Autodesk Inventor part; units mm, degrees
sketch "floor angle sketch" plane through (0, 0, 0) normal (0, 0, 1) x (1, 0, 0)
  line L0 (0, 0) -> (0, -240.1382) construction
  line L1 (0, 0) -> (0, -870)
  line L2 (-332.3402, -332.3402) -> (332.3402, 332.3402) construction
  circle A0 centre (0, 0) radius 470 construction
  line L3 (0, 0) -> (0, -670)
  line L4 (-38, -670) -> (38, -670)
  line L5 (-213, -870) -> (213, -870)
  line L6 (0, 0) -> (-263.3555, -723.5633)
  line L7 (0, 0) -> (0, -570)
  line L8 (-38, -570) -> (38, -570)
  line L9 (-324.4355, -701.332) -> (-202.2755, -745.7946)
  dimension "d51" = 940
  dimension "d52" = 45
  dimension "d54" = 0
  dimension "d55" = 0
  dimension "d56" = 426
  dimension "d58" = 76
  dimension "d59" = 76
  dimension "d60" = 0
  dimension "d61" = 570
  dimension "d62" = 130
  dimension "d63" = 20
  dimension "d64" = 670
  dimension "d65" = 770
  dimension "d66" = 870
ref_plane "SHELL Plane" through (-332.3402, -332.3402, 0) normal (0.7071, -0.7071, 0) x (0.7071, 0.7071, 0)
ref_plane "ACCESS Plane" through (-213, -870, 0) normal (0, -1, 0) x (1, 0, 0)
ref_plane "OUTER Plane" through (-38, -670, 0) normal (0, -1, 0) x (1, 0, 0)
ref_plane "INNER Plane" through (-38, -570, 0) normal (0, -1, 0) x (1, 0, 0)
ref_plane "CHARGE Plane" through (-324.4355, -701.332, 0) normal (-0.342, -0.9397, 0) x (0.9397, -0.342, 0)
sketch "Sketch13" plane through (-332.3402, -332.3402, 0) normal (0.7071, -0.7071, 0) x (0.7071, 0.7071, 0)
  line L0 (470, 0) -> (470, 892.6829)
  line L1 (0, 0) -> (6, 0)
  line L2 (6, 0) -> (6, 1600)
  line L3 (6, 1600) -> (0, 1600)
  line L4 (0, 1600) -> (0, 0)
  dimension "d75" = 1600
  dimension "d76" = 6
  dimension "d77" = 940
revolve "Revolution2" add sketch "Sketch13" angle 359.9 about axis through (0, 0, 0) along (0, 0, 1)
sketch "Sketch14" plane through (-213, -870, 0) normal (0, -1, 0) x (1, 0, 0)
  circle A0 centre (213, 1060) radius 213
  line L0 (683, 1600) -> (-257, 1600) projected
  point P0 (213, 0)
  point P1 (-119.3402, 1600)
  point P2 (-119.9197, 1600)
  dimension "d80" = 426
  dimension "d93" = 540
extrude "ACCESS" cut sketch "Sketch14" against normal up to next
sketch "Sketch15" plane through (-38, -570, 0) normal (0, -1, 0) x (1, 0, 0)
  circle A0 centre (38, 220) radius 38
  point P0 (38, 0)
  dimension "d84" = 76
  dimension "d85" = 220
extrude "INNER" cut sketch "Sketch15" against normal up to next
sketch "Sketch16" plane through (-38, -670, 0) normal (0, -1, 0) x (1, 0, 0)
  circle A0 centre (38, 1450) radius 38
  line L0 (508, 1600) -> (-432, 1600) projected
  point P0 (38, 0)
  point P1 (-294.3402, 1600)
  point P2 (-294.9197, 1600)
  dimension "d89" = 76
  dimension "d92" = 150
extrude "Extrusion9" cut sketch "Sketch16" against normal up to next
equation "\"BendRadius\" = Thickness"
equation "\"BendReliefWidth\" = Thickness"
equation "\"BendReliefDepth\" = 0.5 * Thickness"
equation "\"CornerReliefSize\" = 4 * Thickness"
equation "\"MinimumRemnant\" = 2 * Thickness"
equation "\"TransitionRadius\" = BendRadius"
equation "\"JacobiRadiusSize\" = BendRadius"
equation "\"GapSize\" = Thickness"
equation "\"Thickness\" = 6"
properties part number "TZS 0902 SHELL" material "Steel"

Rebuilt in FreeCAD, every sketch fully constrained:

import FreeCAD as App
import Part
import Sketcher
from FreeCAD import Vector


def add_polygon(sketch, points):
    """Adds a closed chain of lines whose ends are joined by coincident constraints."""
    first, n = sketch.GeometryCount, len(points)
    for a, b in zip(points, points[1:] + points[:1]):
        sketch.addGeometry(Part.LineSegment(App.Vector(*a, 0), App.Vector(*b, 0)), False)
    for i in range(n):
        sketch.addConstraint(Sketcher.Constraint("Coincident", first + i, 2, first + (i + 1) % n, 1))

doc = App.newDocument("Part")
body = doc.addObject("PartDesign::Body", "Body")

# Sketch on an angled plane
sketch1 = body.newObject("Sketcher::SketchObject", "Sketch")
sketch1.Placement = App.Placement(Vector(-332.3402, -332.3402, 0), App.Rotation(Vector(0.707106781, 0.707106781, 0), Vector(0, 0, 0.999999999), Vector(0.707106781, -0.707106781, 0), "ZXY"))
add_polygon(sketch1, [(0, 1599.999998), (0, 0), (6, 0), (6, 1599.999998)])  # lines 0-3
sketch1.addGeometry(Part.LineSegment(Vector(470.000018, 0, 0), Vector(470.000018, 1599.999997, 0)), True)  # axis
sketch1.addConstraint([
    Sketcher.Constraint("Vertical", 0),
    Sketcher.Constraint("Horizontal", 1),
    Sketcher.Constraint("Vertical", 2),
    Sketcher.Constraint("Horizontal", 3),
    Sketcher.Constraint("Vertical", 4),
    Sketcher.Constraint("Coincident", 0, 2, -1, 1),
    Sketcher.Constraint("PointOnObject", 4, 1, -1),
    Sketcher.Constraint("Horizontal", 3, 2, 4, 2),
    Sketcher.Constraint("DistanceX", 1, 1, 1, 2, 6.0),
    Sketcher.Constraint("DistanceY", 0, 2, 0, 1, 1600.0),
    Sketcher.Constraint("DistanceX", -1, 1, 4, 1, 470.0),
])
revolution = body.newObject("PartDesign::Revolution", "Revolution")
revolution.Profile = sketch1
revolution.ReferenceAxis = (sketch1, ["Axis0"])
revolution.Angle = 359.9

# Sketch on XZ plane
sketch2 = body.newObject("Sketcher::SketchObject", "Sketch001")
sketch2.AttachmentSupport = (doc.getObject("XZ_Plane"), [""])
sketch2.MapMode = "FlatFace"
sketch2.AttachmentOffset = App.Placement(Vector(0, 0, 870), App.Rotation())
sketch2.addGeometry(Part.Circle(Vector(0, 1060, 0), Vector(0, 0, 1), 213), False)
sketch2.addConstraint([
    Sketcher.Constraint("PointOnObject", 0, 3, -2),
    Sketcher.Constraint("Diameter", 0, 426.0),
    Sketcher.Constraint("DistanceY", -1, 1, 0, 3, 1060.0),
])
pocket1 = body.newObject("PartDesign::Pocket", "Pocket")
pocket1.Profile = sketch2
pocket1.Length = 457.778

# Sketch on XZ plane
sketch3 = body.newObject("Sketcher::SketchObject", "Sketch002")
sketch3.AttachmentSupport = (doc.getObject("XZ_Plane"), [""])
sketch3.MapMode = "FlatFace"
sketch3.AttachmentOffset = App.Placement(Vector(0, 0, 570), App.Rotation())
sketch3.addGeometry(Part.Circle(Vector(0, 220, 0), Vector(0, 0, 1), 38), False)
sketch3.addConstraint([
    Sketcher.Constraint("PointOnObject", 0, 3, -2),
    Sketcher.Constraint("Diameter", 0, 76.0),
    Sketcher.Constraint("DistanceY", -1, 1, 0, 3, 220.0),
])
pocket2 = body.newObject("PartDesign::Pocket", "Pocket001")
pocket2.Profile = sketch3
pocket2.Length = 107.5586

# Sketch on XZ plane
sketch4 = body.newObject("Sketcher::SketchObject", "Sketch003")
sketch4.AttachmentSupport = (doc.getObject("XZ_Plane"), [""])
sketch4.MapMode = "FlatFace"
sketch4.AttachmentOffset = App.Placement(Vector(0, 0, 670), App.Rotation())
sketch4.addGeometry(Part.Circle(Vector(0, 1450, 0), Vector(0, 0, 1), 38), False)
sketch4.addConstraint([
    Sketcher.Constraint("PointOnObject", 0, 3, -2),
    Sketcher.Constraint("Diameter", 0, 76.0),
    Sketcher.Constraint("DistanceY", -1, 1, 0, 3, 1450.0),
])
pocket3 = body.newObject("PartDesign::Pocket", "Pocket002")
pocket3.Profile = sketch4
pocket3.Length = 207.5586

doc.recompute()
